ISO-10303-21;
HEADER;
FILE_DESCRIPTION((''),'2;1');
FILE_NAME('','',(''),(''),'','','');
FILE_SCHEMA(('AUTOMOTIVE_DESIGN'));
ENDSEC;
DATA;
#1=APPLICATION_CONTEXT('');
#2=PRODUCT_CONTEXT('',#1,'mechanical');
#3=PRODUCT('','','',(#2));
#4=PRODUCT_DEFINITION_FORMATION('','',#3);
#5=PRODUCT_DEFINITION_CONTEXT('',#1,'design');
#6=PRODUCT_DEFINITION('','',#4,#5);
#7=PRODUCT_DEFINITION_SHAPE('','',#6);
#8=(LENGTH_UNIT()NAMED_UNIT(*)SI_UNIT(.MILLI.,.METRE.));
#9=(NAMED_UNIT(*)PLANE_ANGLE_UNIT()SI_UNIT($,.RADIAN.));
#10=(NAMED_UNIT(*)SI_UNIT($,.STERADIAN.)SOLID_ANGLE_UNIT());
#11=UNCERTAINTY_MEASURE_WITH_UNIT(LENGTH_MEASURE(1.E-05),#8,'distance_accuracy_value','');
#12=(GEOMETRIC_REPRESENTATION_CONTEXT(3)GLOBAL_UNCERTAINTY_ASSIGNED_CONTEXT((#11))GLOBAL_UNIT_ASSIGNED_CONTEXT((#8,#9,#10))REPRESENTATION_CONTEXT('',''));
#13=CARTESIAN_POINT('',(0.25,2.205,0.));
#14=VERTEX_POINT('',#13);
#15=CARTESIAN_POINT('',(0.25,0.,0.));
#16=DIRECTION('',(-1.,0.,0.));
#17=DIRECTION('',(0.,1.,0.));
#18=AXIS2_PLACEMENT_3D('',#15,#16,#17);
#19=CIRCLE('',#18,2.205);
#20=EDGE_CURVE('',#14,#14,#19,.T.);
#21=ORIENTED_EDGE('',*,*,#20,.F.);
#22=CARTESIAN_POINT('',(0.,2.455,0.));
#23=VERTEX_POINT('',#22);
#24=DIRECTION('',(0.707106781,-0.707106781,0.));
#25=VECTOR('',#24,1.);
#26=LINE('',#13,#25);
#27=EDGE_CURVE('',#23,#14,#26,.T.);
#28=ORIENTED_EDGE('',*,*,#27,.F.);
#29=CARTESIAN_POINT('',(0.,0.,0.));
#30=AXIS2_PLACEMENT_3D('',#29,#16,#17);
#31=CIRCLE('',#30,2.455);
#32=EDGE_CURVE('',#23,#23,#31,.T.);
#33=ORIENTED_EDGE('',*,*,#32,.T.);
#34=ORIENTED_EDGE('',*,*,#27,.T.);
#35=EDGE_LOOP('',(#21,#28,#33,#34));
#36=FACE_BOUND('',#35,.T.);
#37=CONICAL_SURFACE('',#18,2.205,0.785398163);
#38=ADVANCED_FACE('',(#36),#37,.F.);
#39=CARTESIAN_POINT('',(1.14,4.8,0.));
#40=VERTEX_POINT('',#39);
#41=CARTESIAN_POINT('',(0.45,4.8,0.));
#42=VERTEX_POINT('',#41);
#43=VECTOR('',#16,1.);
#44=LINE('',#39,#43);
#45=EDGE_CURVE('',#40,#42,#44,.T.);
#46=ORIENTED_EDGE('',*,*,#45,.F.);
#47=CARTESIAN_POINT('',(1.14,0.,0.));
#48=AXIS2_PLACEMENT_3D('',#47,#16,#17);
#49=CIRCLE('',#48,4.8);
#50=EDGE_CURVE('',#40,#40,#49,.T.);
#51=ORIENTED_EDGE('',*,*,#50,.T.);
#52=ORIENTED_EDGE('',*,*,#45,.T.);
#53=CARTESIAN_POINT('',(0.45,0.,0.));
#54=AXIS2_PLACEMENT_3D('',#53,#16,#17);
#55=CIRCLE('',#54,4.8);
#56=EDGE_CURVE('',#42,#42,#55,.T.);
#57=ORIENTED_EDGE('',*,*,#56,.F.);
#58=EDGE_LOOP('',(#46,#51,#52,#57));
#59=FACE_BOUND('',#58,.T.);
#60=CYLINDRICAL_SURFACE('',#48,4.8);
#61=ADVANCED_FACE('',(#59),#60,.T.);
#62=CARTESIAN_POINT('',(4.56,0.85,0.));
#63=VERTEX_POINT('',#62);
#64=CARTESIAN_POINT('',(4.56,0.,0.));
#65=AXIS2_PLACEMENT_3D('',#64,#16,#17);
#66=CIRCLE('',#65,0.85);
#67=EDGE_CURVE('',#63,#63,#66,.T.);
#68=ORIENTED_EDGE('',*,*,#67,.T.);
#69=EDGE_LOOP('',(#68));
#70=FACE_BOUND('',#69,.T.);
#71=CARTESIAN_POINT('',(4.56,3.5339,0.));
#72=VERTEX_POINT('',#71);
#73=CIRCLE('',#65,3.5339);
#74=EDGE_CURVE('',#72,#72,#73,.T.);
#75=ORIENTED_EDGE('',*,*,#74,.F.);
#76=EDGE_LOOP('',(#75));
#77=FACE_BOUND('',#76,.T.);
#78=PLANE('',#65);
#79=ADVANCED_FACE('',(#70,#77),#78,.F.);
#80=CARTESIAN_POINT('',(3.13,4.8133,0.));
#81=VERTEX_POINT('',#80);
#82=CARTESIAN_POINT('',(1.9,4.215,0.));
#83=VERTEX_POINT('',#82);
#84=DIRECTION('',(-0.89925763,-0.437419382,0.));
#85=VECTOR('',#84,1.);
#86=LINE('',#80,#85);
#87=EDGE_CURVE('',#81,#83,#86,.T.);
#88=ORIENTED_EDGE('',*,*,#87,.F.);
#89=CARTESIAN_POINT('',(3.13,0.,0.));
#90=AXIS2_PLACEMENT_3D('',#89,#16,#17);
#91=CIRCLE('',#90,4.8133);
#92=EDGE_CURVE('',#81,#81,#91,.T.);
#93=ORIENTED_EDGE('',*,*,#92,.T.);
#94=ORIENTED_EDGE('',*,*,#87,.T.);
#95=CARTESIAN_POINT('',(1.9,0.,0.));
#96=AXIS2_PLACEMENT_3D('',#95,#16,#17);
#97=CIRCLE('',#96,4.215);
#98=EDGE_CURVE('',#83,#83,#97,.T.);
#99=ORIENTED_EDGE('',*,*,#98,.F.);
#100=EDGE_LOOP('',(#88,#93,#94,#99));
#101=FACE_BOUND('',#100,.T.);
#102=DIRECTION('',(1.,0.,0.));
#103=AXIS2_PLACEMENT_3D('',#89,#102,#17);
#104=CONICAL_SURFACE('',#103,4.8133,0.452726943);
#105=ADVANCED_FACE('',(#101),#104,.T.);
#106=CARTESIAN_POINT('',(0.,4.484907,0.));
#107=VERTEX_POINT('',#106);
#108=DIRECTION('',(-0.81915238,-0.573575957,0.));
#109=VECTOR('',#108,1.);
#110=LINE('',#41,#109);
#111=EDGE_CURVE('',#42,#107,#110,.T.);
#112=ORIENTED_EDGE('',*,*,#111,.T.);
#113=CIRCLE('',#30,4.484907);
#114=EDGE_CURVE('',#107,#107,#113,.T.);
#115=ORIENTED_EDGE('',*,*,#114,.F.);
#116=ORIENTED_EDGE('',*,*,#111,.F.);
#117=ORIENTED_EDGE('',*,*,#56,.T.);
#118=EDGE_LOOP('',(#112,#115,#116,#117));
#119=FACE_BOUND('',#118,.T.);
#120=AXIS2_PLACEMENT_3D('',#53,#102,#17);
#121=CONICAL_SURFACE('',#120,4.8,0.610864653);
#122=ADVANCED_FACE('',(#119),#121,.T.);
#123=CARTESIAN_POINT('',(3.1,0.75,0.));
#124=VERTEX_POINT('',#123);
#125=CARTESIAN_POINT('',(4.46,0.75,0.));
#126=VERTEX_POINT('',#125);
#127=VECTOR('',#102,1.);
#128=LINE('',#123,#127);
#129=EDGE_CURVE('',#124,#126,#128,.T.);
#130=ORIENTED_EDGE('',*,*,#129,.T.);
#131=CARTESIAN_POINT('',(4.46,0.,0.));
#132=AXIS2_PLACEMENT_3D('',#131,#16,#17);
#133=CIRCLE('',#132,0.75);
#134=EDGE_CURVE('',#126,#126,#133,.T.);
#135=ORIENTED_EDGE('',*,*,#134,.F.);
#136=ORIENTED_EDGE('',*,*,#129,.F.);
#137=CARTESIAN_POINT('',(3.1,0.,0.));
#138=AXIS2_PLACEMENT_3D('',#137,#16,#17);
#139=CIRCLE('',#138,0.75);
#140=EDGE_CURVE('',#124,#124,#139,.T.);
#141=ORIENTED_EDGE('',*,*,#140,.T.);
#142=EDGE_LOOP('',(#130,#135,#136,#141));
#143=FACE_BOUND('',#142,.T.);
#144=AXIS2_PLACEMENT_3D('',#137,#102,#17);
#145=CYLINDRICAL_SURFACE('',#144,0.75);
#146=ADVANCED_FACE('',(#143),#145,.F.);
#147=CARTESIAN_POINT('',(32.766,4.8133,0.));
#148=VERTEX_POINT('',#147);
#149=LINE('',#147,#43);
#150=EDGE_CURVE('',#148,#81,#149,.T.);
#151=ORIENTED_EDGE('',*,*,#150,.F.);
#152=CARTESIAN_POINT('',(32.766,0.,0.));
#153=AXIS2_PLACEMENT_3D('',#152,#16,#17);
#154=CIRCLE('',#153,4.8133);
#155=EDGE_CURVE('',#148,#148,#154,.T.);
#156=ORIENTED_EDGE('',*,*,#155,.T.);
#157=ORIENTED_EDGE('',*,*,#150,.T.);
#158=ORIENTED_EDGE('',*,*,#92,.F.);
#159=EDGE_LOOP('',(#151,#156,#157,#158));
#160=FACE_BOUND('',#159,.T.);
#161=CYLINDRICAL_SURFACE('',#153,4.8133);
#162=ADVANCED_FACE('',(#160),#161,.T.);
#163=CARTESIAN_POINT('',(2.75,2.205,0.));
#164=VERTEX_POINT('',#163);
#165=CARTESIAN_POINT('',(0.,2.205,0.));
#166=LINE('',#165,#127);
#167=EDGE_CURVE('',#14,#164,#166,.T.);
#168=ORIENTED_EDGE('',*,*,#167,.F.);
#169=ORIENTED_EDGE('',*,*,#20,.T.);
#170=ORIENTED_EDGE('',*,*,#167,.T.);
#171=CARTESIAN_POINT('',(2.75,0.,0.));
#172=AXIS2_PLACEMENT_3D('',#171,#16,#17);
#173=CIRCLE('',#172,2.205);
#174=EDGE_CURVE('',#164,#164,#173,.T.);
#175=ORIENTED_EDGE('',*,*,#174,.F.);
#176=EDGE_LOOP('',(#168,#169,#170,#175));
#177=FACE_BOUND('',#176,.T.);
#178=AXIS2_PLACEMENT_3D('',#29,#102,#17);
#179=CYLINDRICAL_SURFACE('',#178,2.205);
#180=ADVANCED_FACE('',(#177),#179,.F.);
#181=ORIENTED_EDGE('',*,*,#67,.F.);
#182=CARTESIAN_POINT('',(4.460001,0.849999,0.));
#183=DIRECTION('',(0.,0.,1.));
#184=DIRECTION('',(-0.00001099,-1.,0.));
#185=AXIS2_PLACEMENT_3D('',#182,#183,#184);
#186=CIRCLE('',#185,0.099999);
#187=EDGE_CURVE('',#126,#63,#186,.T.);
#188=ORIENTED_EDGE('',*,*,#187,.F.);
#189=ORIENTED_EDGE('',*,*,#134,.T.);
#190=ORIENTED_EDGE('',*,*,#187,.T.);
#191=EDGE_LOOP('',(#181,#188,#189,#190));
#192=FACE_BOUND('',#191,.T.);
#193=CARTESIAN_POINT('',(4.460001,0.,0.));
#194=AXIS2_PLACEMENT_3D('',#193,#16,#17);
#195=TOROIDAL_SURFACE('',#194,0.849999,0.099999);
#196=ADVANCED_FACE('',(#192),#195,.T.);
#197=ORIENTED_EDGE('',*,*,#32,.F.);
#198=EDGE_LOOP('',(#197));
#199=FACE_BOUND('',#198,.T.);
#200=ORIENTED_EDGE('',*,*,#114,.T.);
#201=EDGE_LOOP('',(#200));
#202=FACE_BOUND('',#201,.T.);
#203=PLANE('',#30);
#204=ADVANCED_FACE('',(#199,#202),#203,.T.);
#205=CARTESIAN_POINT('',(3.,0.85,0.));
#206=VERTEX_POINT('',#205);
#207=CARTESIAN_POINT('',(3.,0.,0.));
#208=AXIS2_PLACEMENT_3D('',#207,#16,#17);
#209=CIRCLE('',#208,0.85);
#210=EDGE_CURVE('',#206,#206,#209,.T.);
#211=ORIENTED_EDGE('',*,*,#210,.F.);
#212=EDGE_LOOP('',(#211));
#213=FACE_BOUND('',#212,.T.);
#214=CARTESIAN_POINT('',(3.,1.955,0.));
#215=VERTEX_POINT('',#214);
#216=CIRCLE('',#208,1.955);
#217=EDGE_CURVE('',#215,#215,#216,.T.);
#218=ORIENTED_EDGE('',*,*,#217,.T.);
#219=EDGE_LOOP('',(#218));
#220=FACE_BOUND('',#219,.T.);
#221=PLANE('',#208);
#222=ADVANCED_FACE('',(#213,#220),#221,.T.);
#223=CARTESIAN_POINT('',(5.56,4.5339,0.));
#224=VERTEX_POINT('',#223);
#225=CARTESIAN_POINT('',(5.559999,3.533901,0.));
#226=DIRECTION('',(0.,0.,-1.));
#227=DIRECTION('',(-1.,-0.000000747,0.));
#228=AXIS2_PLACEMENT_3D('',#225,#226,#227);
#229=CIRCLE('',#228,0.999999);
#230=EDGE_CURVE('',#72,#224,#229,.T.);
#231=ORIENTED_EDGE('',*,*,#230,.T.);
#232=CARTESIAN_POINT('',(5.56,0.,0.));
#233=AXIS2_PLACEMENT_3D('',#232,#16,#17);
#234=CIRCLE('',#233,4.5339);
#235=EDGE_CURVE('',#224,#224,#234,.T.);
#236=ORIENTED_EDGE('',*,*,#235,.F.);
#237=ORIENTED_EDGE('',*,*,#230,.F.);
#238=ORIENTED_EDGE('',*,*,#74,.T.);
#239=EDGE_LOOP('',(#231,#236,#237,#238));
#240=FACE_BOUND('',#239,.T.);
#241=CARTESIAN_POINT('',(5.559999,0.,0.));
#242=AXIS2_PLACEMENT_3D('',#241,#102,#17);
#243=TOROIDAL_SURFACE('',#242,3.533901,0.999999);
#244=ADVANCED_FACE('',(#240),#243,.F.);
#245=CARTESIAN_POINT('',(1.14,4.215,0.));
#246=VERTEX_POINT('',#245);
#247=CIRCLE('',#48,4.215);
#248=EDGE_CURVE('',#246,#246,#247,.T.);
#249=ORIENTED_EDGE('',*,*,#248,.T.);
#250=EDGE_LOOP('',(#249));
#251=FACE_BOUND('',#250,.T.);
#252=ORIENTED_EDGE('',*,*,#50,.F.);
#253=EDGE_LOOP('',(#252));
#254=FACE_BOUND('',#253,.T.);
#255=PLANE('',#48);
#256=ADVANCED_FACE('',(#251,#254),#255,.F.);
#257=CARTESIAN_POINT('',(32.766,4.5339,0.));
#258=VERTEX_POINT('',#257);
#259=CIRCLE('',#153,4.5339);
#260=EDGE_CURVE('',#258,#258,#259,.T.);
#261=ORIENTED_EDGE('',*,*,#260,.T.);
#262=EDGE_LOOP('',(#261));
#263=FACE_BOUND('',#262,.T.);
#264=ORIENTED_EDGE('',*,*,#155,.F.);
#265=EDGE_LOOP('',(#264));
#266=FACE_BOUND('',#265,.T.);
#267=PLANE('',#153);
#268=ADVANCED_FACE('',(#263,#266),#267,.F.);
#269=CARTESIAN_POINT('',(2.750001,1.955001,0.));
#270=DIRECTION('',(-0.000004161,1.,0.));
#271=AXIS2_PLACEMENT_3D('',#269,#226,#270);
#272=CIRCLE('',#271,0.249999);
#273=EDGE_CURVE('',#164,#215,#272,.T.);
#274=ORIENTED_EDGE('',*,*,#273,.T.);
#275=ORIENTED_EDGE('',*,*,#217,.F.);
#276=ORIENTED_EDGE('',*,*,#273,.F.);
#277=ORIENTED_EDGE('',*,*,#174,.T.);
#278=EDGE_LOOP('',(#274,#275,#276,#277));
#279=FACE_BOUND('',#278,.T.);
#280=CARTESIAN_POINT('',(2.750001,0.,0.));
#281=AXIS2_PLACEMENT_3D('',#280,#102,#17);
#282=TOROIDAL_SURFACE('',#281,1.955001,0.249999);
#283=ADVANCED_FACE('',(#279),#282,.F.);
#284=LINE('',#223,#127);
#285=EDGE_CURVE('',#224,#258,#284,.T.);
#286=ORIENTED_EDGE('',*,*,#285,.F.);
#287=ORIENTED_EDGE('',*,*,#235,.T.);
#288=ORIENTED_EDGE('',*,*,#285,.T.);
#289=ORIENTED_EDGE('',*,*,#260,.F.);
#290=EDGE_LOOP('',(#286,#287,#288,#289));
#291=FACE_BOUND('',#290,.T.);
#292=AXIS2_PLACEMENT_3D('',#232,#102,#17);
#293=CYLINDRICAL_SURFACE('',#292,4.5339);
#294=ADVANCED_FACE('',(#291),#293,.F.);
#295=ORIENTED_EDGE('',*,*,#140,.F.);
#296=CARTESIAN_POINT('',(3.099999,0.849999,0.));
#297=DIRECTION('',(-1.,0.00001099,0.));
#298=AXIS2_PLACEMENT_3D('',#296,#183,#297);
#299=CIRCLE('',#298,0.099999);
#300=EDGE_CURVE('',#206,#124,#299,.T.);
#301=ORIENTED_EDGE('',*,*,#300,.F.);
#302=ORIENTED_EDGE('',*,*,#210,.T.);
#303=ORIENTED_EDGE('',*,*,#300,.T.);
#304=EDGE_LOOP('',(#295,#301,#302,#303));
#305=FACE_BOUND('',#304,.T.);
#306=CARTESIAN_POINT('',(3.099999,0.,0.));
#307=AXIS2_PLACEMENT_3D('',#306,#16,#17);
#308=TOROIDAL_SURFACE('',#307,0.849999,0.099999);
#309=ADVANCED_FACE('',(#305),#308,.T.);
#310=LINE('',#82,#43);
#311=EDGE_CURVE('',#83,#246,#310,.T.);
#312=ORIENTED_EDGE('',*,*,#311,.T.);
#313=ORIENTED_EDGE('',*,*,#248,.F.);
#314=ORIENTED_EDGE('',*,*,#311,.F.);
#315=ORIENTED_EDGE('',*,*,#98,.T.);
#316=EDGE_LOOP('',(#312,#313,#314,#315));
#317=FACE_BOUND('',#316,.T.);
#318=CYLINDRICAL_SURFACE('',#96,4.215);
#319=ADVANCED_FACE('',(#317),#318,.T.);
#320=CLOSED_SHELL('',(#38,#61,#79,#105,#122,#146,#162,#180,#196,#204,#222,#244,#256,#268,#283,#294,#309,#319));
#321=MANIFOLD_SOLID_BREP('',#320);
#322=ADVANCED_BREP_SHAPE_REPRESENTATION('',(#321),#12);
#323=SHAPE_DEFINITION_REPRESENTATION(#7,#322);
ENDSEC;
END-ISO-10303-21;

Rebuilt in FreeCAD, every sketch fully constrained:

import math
import FreeCAD as App
import Part
import Sketcher

V = App.Vector


def edges_at(feature, points):
    """Names of the edges that pass closest to the given points."""
    edges = feature.Shape.Edges
    near = lambda p: min(range(len(edges)), key=lambda i: edges[i].distToShape(Part.Vertex(*p))[0])
    return sorted({f"Edge{near(p) + 1}" for p in points})

doc = App.newDocument("Part")
params = doc.addObject("Spreadsheet::Sheet", "Params")
for row, (alias, value) in enumerate([
    ("sketch1_radius", "0.999999 mm"),
    ("sketch1_radius2", "0.099999 mm"),
    ("sketch1_radius3", "0.249999 mm"),
    ("sketch1_width", "1.36 mm"),
    ("sketch1_width2", "0.76 mm"),
    ("revolution_angle", "360 deg"),
    ("chamfer_size", "0.25 mm"),
], start=1):
    params.set(f"A{row}", alias)
    params.set(f"B{row}", "=" + value)
    params.setAlias(f"B{row}", alias)

body = doc.addObject("PartDesign::Body", "Body")

sketch1 = body.newObject("Sketcher::SketchObject", "Sketch")
sketch1.AttachmentSupport = (doc.getObject("XY_Plane"), [""])
sketch1.MapMode = "FlatFace"
sketch1.addGeometry([
    Part.LineSegment(V(0, 4.48, 0), V(0, 2.21, 0)),
    Part.LineSegment(V(0, 2.21, 0), V(2.75, 2.21, 0)),
    Part.ArcOfCircle(Part.Circle(V(2.75, 1.96, 0), V(0, 0, 1), 0.25), math.radians(0), math.radians(90)),
    Part.LineSegment(V(3, 1.96, 0), V(3, 0.85, 0)),
    Part.ArcOfCircle(Part.Circle(V(3.1, 0.85, 0), V(0, 0, 1), 0.1), math.radians(180), math.radians(270)),
    Part.LineSegment(V(3.1, 0.75, 0), V(4.46, 0.75, 0)),
    Part.ArcOfCircle(Part.Circle(V(4.46, 0.85, 0), V(0, 0, 1), 0.1), math.radians(-90), math.radians(0)),
    Part.LineSegment(V(4.56, 0.85, 0), V(4.56, 3.53, 0)),
    Part.ArcOfCircle(Part.Circle(V(5.56, 3.53, 0), V(0, 0, 1), 1), math.radians(90), math.radians(180)),
    Part.LineSegment(V(5.56, 4.53, 0), V(32.77, 4.53, 0)),
    Part.LineSegment(V(32.77, 4.53, 0), V(32.77, 4.81, 0)),
    Part.LineSegment(V(32.77, 4.81, 0), V(3.13, 4.81, 0)),
    Part.LineSegment(V(3.13, 4.81, 0), V(1.9, 4.21, 0)),
    Part.LineSegment(V(1.9, 4.21, 0), V(1.14, 4.21, 0)),
    Part.LineSegment(V(1.14, 4.21, 0), V(1.14, 4.8, 0)),
    Part.LineSegment(V(1.14, 4.8, 0), V(0.45, 4.8, 0)),
    Part.LineSegment(V(0.45, 4.8, 0), V(0, 4.48, 0)),
], False)
sketch1.addConstraint([
    Sketcher.Constraint("Coincident", 0, 2, 1, 1),
    Sketcher.Constraint("Coincident", 1, 2, 2, 2),
    Sketcher.Constraint("Coincident", 2, 1, 3, 1),
    Sketcher.Constraint("Coincident", 3, 2, 4, 1),
    Sketcher.Constraint("Coincident", 4, 2, 5, 1),
    Sketcher.Constraint("Coincident", 5, 2, 6, 1),
    Sketcher.Constraint("Coincident", 6, 2, 7, 1),
    Sketcher.Constraint("Tangent", 7, 2, 8, 2),
    Sketcher.Constraint("Tangent", 8, 1, 9, 1),
    Sketcher.Constraint("Coincident", 9, 2, 10, 1),
    Sketcher.Constraint("Coincident", 10, 2, 11, 1),
    Sketcher.Constraint("Coincident", 11, 2, 12, 1),
    Sketcher.Constraint("Coincident", 12, 2, 13, 1),
    Sketcher.Constraint("Coincident", 13, 2, 14, 1),
    Sketcher.Constraint("Coincident", 14, 2, 15, 1),
    Sketcher.Constraint("Coincident", 15, 2, 16, 1),
    Sketcher.Constraint("Coincident", 16, 2, 0, 1),
    Sketcher.Constraint("Vertical", 0),
    Sketcher.Constraint("Horizontal", 1),
    Sketcher.Constraint("Vertical", 3),
    Sketcher.Constraint("Horizontal", 5),
    Sketcher.Constraint("Vertical", 7),
    Sketcher.Constraint("Horizontal", 9),
    Sketcher.Constraint("Vertical", 10),
    Sketcher.Constraint("Horizontal", 11),
    Sketcher.Constraint("Horizontal", 13),
    Sketcher.Constraint("Vertical", 14),
    Sketcher.Constraint("Horizontal", 15),
    Sketcher.Constraint("Equal", 4, 6),
    Sketcher.Constraint("PointOnObject", 0, 2, -2),
    Sketcher.Constraint("Horizontal", 6, 3, 3, 2),
    Sketcher.Constraint("Horizontal", 3, 2, 6, 2),
    Sketcher.Constraint("Vertical", 2, 3, 1, 2),
    Sketcher.Constraint("Vertical", 6, 3, 5, 2),
    Sketcher.Constraint("Radius", 8, 0.999999),
    Sketcher.Constraint("Radius", 4, 0.099999),
    Sketcher.Constraint("Radius", 2, 0.249999),
    Sketcher.Constraint("DistanceX", -1, 1, 2, 1, 3.0),
    Sketcher.Constraint("DistanceX", 5, 1, 5, 2, 1.36),
    Sketcher.Constraint("DistanceX", 13, 2, 13, 1, 0.76),
    Sketcher.Constraint("DistanceX", 15, 2, 15, 1, 0.69),
    Sketcher.Constraint("DistanceX", -1, 1, 4, 2, 3.1),
    Sketcher.Constraint("DistanceX", -1, 1, 12, 2, 1.9),
    Sketcher.Constraint("DistanceY", -1, 1, 14, 2, 4.8),
    Sketcher.Constraint("DistanceX", 9, 1, 9, 2, 27.206),
    Sketcher.Constraint("DistanceX", 11, 2, 11, 1, 29.636),
    Sketcher.Constraint("DistanceY", 3, 2, 3, 1, 1.105),
    Sketcher.Constraint("DistanceY", 14, 1, 14, 2, 0.585),
    Sketcher.Constraint("DistanceY", -1, 1, 4, 3, 0.849999),
    Sketcher.Constraint("DistanceY", 2, 1, 1, 2, 0.25),
    Sketcher.Constraint("DistanceY", 7, 1, 7, 2, 2.6839),
    Sketcher.Constraint("DistanceY", 10, 1, 10, 2, 0.2794),
    Sketcher.Constraint("Distance", 16, 0.549348),
])
sketch1.setExpression("Constraints[34]", "Params.sketch1_radius")
sketch1.setExpression("Constraints[35]", "Params.sketch1_radius2")
sketch1.setExpression("Constraints[36]", "Params.sketch1_radius3")
sketch1.setExpression("Constraints[38]", "Params.sketch1_width")
sketch1.setExpression("Constraints[39]", "Params.sketch1_width2")
revolution = body.newObject("PartDesign::Revolution", "Revolution")
revolution.Profile = sketch1
revolution.ReferenceAxis = (sketch1, ["H_Axis"])
revolution.setExpression("Angle", "Params.revolution_angle")
doc.recompute()

chamfer = body.newObject("PartDesign::Chamfer", "Chamfer")
chamfer.Base = (revolution, edges_at(revolution, [(0, -2.205, 0)]))
chamfer.setExpression("Size", "Params.chamfer_size")

doc.recompute()
